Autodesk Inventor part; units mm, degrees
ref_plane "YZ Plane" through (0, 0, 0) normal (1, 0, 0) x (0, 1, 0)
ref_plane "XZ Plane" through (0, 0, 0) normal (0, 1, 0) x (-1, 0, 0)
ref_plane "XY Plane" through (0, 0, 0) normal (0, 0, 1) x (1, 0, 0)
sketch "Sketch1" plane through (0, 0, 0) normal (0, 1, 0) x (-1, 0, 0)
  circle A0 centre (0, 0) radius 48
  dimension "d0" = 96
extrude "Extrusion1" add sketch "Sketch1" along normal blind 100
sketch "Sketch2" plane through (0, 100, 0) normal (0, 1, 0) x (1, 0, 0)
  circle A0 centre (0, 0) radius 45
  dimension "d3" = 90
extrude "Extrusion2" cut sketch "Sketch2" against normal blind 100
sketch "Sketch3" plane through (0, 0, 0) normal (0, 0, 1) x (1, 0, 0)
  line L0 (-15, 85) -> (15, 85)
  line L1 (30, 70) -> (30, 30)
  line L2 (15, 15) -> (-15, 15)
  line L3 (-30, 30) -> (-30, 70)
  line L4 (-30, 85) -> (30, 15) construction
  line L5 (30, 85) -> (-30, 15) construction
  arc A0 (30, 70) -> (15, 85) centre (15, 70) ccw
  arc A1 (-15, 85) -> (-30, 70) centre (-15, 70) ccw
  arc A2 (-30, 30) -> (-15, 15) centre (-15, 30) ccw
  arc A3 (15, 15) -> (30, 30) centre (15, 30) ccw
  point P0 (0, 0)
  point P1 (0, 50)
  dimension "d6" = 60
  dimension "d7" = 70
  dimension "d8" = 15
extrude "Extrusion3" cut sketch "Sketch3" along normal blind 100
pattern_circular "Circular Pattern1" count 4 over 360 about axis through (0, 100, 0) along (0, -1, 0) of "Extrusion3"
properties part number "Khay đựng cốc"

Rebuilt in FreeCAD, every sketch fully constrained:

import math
import FreeCAD as App
import Part
import Sketcher

doc = App.newDocument("Part")
body = doc.addObject("PartDesign::Body", "Body")

# Sketch on XZ plane
sketch1 = body.newObject("Sketcher::SketchObject", "Sketch")
sketch1.AttachmentSupport = (doc.getObject("XZ_Plane"), [""])
sketch1.MapMode = "FlatFace"
sketch1.addGeometry(Part.Circle(App.Vector(0, 0, 0), App.Vector(0, 0, 1), 48), False)
sketch1.addConstraint(Sketcher.Constraint("Coincident", 0, 3, -1, 1))
sketch1.addConstraint(Sketcher.Constraint("Diameter", 0, 96.0))
pad1 = body.newObject("PartDesign::Pad", "Pad")
pad1.Profile = sketch1
pad1.Length = 100
pad1.Reversed = True

# Sketch on XZ plane
sketch2 = body.newObject("Sketcher::SketchObject", "Sketch001")
sketch2.AttachmentSupport = (doc.getObject("XZ_Plane"), [""])
sketch2.MapMode = "FlatFace"
sketch2.AttachmentOffset = App.Placement(App.Vector(0, 0, -100), App.Rotation())
sketch2.addGeometry(Part.Circle(App.Vector(0, 0, 0), App.Vector(0, 0, 1), 45), False)
sketch2.addConstraint(Sketcher.Constraint("Coincident", 0, 3, -1, 1))
sketch2.addConstraint(Sketcher.Constraint("Diameter", 0, 90.0))
pocket1 = body.newObject("PartDesign::Pocket", "Pocket")
pocket1.Profile = sketch2
pocket1.Length = 100
pocket1.Reversed = True

# Sketch on XY plane
sketch3 = body.newObject("Sketcher::SketchObject", "Sketch002")
sketch3.AttachmentSupport = (doc.getObject("XY_Plane"), [""])
sketch3.MapMode = "FlatFace"
sketch3.addGeometry(Part.LineSegment(App.Vector(15, 85, 0), App.Vector(-15, 85, 0)), False)
sketch3.addGeometry(Part.ArcOfCircle(Part.Circle(App.Vector(-15, 70, 0), App.Vector(0, 0, 1), 15), math.radians(90), math.radians(180)), False)
sketch3.addGeometry(Part.LineSegment(App.Vector(-30, 70, 0), App.Vector(-30, 30, 0)), False)
sketch3.addGeometry(Part.ArcOfCircle(Part.Circle(App.Vector(-15, 30, 0), App.Vector(0, 0, 1), 15), math.radians(180), math.radians(270)), False)
sketch3.addGeometry(Part.LineSegment(App.Vector(-15, 15, 0), App.Vector(15, 15, 0)), False)
sketch3.addGeometry(Part.ArcOfCircle(Part.Circle(App.Vector(15, 30, 0), App.Vector(0, 0, 1), 15), math.radians(-90), math.radians(0)), False)
sketch3.addGeometry(Part.LineSegment(App.Vector(30, 30, 0), App.Vector(30, 70, 0)), False)
sketch3.addGeometry(Part.ArcOfCircle(Part.Circle(App.Vector(15, 70, 0), App.Vector(0, 0, 1), 15), math.radians(0), math.radians(90)), False)
sketch3.addConstraint(Sketcher.Constraint("Tangent", 0, 2, 1, 1))
sketch3.addConstraint(Sketcher.Constraint("Tangent", 1, 2, 2, 1))
sketch3.addConstraint(Sketcher.Constraint("Tangent", 2, 2, 3, 1))
sketch3.addConstraint(Sketcher.Constraint("Tangent", 3, 2, 4, 1))
sketch3.addConstraint(Sketcher.Constraint("Tangent", 4, 2, 5, 1))
sketch3.addConstraint(Sketcher.Constraint("Tangent", 5, 2, 6, 1))
sketch3.addConstraint(Sketcher.Constraint("Tangent", 6, 2, 7, 1))
sketch3.addConstraint(Sketcher.Constraint("Tangent", 7, 2, 0, 1))
sketch3.addConstraint(Sketcher.Constraint("Horizontal", 0))
sketch3.addConstraint(Sketcher.Constraint("Vertical", 2))
sketch3.addConstraint(Sketcher.Constraint("Horizontal", 4))
sketch3.addConstraint(Sketcher.Constraint("Vertical", 6))
sketch3.addConstraint(Sketcher.Constraint("Equal", 1, 3))
sketch3.addConstraint(Sketcher.Constraint("Equal", 3, 5))
sketch3.addConstraint(Sketcher.Constraint("Equal", 5, 7))
sketch3.addConstraint(Sketcher.Constraint("Radius", 1, 15.0))
sketch3.addConstraint(Sketcher.Constraint("DistanceX", 1, 3, -1, 1, 15.0))
sketch3.addConstraint(Sketcher.Constraint("DistanceY", -1, 1, 1, 3, 70.0))
sketch3.addConstraint(Sketcher.Constraint("DistanceX", -1, 1, 5, 3, 15.0))
sketch3.addConstraint(Sketcher.Constraint("DistanceY", -1, 1, 3, 2, 15.0))
pocket2 = body.newObject("PartDesign::Pocket", "Pocket001")
pocket2.Profile = sketch3
pocket2.Length = 100
pocket2.Reversed = True
doc.recompute()

polarpattern = body.newObject("PartDesign::PolarPattern", "PolarPattern")
polarpattern.Originals = [pocket2]
polarpattern.Axis = (doc.getObject("Y_Axis"), [""])
polarpattern.Angle = 360
polarpattern.Occurrences = 4
body.Tip = polarpattern

doc.recompute()
